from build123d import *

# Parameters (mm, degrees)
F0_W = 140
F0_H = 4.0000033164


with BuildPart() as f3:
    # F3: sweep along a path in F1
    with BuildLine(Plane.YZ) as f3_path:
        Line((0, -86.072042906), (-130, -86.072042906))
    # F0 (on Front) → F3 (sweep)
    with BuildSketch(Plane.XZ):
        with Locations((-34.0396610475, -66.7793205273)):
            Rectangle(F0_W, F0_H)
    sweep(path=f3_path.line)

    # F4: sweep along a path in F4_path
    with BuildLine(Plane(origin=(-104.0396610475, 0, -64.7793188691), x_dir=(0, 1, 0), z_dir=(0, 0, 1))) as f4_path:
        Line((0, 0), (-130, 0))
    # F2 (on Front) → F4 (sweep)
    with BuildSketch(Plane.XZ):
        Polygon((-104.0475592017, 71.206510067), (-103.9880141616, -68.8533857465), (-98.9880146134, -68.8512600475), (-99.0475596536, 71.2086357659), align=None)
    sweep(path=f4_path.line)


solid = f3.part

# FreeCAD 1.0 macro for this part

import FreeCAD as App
import Part
import Sketcher
from FreeCAD import Vector
Q = App.Units.Quantity

doc = App.newDocument("Part")
body = doc.addObject("PartDesign::Body", "Body")

# Sketch on XZ plane
sketch1 = doc.addObject("Sketcher::SketchObject", "Sketch")
body.addObject(sketch1)
sketch1.AttachmentSupport = (doc.XZ_Plane, [""])
sketch1.MapMode = "FlatFace"
sketch1.addGeometry([
    Part.LineSegment(Vector(-104, -64.8, 0), Vector(-104, -68.8, 0)),
    Part.LineSegment(Vector(-104, -68.8, 0), Vector(36, -68.8, 0)),
    Part.LineSegment(Vector(36, -68.8, 0), Vector(36, -64.8, 0)),
    Part.LineSegment(Vector(36, -64.8, 0), Vector(-104, -64.8, 0)),
], False)
sketch1.addConstraint([
    Sketcher.Constraint("Coincident", 0, 2, 1, 1),
    Sketcher.Constraint("Coincident", 1, 2, 2, 1),
    Sketcher.Constraint("Coincident", 2, 2, 3, 1),
    Sketcher.Constraint("Coincident", 3, 2, 0, 1),
    Sketcher.Constraint("Vertical", 0),
    Sketcher.Constraint("Horizontal", 1),
    Sketcher.Constraint("Vertical", 2),
    Sketcher.Constraint("Horizontal", 3),
    Sketcher.Constraint("DistanceX", 1, 1, 1, 2, Q("140 mm")),
    Sketcher.Constraint("DistanceY", 0, 2, 0, 1, Q("4.000003 mm")),
    Sketcher.Constraint("DistanceX", 0, 2, -1, 1, Q("104.039661 mm")),
    Sketcher.Constraint("DistanceY", 2, 2, -1, 1, Q("64.779319 mm")),
])

# Sketch on XY plane
sketch2 = doc.addObject("Sketcher::SketchObject", "Sketch001")
body.addObject(sketch2)
sketch2.AttachmentSupport = (doc.XY_Plane, [""])
sketch2.MapMode = "FlatFace"
sketch2.AttachmentOffset = App.Placement(Vector(0, 0, -86.072043), App.Rotation())
sketch2.addGeometry(Part.LineSegment(Vector(0, 0, 0), Vector(0, -130, 0)), False)
sketch2.addConstraint([
    Sketcher.Constraint("Vertical", 0),
    Sketcher.Constraint("Coincident", 0, 1, -1, 1),
    Sketcher.Constraint("DistanceY", 0, 2, 0, 1, Q("130 mm")),
])
doc.recompute()

additivepipe = doc.addObject("PartDesign::AdditivePipe", "AdditivePipe")
body.addObject(additivepipe)
additivepipe.Profile = sketch1
additivepipe.Spine = (sketch2, ["Edge1"])

# Sketch on XZ plane
sketch3 = doc.addObject("Sketcher::SketchObject", "Sketch002")
body.addObject(sketch3)
sketch3.AttachmentSupport = (doc.XZ_Plane, [""])
sketch3.MapMode = "FlatFace"
sketch3.addGeometry([
    Part.LineSegment(Vector(-104, 71.2, 0), Vector(-104, -68.9, 0)),
    Part.LineSegment(Vector(-104, -68.9, 0), Vector(-99, -68.9, 0)),
    Part.LineSegment(Vector(-99, -68.9, 0), Vector(-99, 71.2, 0)),
    Part.LineSegment(Vector(-99, 71.2, 0), Vector(-104, 71.2, 0)),
], False)
sketch3.addConstraint([
    Sketcher.Constraint("Coincident", 0, 2, 1, 1),
    Sketcher.Constraint("Coincident", 1, 2, 2, 1),
    Sketcher.Constraint("Coincident", 2, 2, 3, 1),
    Sketcher.Constraint("Coincident", 3, 2, 0, 1),
    Sketcher.Constraint("Perpendicular", 0, 1),
    Sketcher.Constraint("Perpendicular", 1, 2),
    Sketcher.Constraint("Perpendicular", 2, 3),
    Sketcher.Constraint("Distance", 1, Q("5 mm")),
    Sketcher.Constraint("Distance", 0, Q("140.059908 mm")),
    Sketcher.Constraint("DistanceY", 1, 2, -1, 1, Q("68.85126 mm")),
    Sketcher.Constraint("DistanceX", 2, 2, -1, 1, Q("99.04756 mm")),
    Sketcher.Constraint("DistanceY", -1, 1, 3, 2, Q("71.20651 mm")),
])

# Sketch on XY plane
sketch4 = doc.addObject("Sketcher::SketchObject", "Sketch003")
body.addObject(sketch4)
sketch4.AttachmentSupport = (doc.XY_Plane, [""])
sketch4.MapMode = "FlatFace"
sketch4.AttachmentOffset = App.Placement(Vector(0, 0, -64.779319), App.Rotation())
sketch4.addGeometry(Part.LineSegment(Vector(-104, 0, 0), Vector(-104, -130, 0)), False)
sketch4.addConstraint([
    Sketcher.Constraint("Vertical", 0),
    Sketcher.Constraint("PointOnObject", 0, 1, -1),
    Sketcher.Constraint("DistanceY", 0, 2, 0, 1, Q("130 mm")),
    Sketcher.Constraint("DistanceX", 0, 1, -1, 1, Q("104.039661 mm")),
])
doc.recompute()

additivepipe2 = doc.addObject("PartDesign::AdditivePipe", "AdditivePipe001")
body.addObject(additivepipe2)
additivepipe2.Profile = sketch3
additivepipe2.Spine = (sketch4, ["Edge1"])

doc.recompute()
